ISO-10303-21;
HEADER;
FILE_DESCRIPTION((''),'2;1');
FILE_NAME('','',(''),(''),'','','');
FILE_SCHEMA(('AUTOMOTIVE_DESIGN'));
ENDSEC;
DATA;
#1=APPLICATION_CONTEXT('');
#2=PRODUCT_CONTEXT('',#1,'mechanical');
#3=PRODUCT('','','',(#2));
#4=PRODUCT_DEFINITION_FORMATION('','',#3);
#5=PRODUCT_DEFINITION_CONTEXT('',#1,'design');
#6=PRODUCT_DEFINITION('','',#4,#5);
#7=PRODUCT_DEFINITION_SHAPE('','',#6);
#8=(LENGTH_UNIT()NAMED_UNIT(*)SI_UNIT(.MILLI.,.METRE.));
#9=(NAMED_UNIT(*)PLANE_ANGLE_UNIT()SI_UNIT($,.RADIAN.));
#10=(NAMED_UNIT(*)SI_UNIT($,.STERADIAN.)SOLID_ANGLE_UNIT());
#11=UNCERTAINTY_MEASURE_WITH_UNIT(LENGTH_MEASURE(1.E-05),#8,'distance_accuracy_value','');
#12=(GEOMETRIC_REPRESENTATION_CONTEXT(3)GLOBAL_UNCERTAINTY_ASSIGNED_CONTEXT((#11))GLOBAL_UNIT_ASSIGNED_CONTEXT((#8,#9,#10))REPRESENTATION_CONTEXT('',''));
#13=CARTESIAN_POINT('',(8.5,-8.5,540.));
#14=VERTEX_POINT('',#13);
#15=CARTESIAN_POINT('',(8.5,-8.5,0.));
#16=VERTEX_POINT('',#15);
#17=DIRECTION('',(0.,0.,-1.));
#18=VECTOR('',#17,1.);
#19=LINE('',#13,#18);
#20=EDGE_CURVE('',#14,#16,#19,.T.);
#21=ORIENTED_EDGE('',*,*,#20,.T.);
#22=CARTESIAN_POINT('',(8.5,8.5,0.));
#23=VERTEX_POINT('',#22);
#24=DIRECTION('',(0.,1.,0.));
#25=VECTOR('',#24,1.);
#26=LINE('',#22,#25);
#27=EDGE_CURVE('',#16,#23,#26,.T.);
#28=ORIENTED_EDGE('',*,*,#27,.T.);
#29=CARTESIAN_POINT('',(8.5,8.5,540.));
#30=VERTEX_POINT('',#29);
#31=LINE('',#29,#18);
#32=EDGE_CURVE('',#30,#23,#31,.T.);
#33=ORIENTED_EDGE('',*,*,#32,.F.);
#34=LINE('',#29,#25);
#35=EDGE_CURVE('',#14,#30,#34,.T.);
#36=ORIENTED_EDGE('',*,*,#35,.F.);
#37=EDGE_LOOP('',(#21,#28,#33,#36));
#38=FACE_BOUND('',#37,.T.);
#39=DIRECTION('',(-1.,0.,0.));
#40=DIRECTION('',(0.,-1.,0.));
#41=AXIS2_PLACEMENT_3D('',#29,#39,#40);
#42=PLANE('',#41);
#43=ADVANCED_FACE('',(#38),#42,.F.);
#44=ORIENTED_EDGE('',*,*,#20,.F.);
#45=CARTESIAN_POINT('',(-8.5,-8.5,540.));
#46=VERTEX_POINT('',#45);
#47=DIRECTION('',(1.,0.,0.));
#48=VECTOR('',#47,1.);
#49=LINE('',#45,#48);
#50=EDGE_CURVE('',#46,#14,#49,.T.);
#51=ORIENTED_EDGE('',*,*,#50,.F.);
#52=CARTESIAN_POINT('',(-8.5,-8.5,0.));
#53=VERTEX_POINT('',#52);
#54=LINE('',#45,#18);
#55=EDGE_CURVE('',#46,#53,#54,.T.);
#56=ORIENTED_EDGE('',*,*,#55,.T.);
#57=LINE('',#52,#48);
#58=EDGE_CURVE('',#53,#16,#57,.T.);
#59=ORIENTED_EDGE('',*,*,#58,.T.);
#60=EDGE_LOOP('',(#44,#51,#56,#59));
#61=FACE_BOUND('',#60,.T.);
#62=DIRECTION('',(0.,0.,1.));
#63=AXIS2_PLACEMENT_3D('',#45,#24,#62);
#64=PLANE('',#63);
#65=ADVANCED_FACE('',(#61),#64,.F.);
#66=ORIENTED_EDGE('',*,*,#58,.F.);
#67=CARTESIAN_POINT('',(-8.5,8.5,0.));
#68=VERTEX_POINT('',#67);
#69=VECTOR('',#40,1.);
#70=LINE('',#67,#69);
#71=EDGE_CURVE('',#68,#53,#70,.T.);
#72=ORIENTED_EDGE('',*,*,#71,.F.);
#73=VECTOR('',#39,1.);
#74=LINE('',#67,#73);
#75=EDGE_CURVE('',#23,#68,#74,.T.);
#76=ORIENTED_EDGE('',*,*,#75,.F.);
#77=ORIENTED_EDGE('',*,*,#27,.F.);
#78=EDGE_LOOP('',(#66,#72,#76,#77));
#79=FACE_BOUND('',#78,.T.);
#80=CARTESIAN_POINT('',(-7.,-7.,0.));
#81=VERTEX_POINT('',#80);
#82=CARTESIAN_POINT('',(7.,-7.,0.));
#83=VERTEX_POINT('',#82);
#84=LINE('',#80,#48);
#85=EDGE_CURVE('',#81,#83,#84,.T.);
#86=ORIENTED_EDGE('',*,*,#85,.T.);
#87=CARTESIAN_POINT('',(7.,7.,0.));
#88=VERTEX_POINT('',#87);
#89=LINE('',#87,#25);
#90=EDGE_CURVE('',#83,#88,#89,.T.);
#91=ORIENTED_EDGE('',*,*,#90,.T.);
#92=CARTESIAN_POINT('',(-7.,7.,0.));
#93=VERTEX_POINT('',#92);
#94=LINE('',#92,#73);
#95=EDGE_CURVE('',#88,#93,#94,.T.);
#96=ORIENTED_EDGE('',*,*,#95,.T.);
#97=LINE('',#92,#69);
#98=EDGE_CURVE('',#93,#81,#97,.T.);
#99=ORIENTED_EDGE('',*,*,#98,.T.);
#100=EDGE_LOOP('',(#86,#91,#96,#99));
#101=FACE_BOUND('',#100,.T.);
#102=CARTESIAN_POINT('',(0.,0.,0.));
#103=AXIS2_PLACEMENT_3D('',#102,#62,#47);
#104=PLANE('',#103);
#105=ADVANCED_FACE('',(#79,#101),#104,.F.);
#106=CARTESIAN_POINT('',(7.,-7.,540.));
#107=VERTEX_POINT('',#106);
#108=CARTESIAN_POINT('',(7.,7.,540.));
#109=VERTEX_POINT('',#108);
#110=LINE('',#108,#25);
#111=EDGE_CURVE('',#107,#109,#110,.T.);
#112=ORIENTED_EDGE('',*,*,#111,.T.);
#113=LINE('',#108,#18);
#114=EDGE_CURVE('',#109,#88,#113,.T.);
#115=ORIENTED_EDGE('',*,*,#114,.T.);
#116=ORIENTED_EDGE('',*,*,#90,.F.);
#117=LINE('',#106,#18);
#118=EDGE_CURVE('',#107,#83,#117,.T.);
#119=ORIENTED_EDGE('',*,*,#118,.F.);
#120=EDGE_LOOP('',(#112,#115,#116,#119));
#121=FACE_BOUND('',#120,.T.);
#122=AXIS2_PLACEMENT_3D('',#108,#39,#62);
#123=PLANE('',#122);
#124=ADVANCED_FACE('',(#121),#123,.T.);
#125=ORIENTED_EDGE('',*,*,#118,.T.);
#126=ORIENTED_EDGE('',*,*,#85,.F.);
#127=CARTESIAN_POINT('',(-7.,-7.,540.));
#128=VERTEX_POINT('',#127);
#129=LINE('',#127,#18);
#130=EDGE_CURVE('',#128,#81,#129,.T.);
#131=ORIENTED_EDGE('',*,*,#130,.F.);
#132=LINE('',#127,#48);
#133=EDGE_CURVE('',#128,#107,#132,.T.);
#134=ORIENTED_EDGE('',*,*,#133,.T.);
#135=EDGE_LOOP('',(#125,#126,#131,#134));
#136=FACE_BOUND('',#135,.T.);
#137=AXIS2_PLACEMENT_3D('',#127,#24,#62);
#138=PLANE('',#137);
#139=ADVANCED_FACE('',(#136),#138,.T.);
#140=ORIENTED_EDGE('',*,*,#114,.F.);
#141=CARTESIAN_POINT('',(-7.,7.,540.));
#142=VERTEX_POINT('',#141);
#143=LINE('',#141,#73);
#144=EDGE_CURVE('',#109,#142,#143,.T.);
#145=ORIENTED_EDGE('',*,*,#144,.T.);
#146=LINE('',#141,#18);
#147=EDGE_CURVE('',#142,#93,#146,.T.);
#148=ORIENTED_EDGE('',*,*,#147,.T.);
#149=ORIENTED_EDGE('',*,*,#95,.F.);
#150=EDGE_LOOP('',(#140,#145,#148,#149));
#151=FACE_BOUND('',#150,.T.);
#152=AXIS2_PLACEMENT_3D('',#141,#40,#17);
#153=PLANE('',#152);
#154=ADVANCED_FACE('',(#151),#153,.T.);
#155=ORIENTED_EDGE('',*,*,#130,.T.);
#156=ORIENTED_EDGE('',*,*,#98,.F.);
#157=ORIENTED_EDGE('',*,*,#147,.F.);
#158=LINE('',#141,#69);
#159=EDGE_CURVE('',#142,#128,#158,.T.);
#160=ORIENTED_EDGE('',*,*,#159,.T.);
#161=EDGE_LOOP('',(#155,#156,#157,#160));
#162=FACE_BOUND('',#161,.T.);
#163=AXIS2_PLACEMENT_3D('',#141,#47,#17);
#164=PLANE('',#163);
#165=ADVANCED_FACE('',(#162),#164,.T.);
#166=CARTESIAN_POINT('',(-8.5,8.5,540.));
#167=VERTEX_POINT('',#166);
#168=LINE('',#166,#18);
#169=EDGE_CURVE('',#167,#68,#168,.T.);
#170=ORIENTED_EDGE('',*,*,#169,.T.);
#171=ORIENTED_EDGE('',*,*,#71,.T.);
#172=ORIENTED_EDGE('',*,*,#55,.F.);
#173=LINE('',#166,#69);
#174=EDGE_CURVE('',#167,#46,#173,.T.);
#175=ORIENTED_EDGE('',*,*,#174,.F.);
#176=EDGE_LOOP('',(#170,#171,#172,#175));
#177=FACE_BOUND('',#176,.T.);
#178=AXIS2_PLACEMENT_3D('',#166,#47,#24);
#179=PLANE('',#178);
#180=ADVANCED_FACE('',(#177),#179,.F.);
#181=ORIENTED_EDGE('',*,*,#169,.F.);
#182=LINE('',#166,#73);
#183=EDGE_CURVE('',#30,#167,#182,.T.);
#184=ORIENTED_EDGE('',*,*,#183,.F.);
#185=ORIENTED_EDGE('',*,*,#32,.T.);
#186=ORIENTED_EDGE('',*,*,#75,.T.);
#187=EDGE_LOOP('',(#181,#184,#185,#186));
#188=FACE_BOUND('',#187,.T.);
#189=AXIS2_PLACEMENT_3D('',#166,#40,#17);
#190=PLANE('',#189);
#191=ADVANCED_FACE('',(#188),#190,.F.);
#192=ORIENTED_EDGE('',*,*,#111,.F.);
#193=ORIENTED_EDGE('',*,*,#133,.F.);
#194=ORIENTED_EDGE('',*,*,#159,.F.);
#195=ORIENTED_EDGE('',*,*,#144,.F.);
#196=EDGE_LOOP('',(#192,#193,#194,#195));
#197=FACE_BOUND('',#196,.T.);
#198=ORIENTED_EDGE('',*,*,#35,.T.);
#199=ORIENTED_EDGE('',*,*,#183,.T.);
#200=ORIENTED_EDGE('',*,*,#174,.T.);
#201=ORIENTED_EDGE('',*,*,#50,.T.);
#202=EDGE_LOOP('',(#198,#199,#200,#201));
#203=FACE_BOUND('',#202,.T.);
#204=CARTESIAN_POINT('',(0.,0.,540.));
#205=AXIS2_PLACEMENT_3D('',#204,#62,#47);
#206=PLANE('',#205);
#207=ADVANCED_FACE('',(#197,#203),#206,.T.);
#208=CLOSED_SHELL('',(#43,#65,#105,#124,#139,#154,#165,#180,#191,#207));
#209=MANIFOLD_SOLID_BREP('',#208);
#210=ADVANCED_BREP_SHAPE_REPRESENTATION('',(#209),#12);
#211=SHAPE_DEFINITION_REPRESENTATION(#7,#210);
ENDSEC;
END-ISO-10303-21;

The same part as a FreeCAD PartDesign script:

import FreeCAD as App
import Part
import Sketcher
from FreeCAD import Vector
Q = App.Units.Quantity

doc = App.newDocument("Part")
params = doc.addObject("Spreadsheet::Sheet", "Params")
for row, (alias, value) in enumerate([
    ("sketch1_width", "17 mm"),
    ("sketch1_width2", "14 mm"),
    ("pad1_length", "540 mm"),
], start=1):
    params.set(f"A{row}", alias)
    params.set(f"B{row}", "=" + value)
    params.setAlias(f"B{row}", alias)

body = doc.addObject("PartDesign::Body", "Body")

# Sketch on XY plane
sketch1 = body.newObject("Sketcher::SketchObject", "Sketch")
sketch1.AttachmentSupport = (doc.getObject("XY_Plane"), [""])
sketch1.MapMode = "FlatFace"
sketch1.addGeometry([
    Part.LineSegment(Vector(-8.5, 8.5, 0), Vector(-8.5, -8.5, 0)),  # 0
    Part.LineSegment(Vector(-8.5, -8.5, 0), Vector(8.5, -8.5, 0)),  # 1
    Part.LineSegment(Vector(8.5, -8.5, 0), Vector(8.5, 8.5, 0)),  # 2
    Part.LineSegment(Vector(8.5, 8.5, 0), Vector(-8.5, 8.5, 0)),  # 3
    Part.LineSegment(Vector(7, -7, 0), Vector(-7, -7, 0)),  # 4
    Part.LineSegment(Vector(-7, -7, 0), Vector(-7, 7, 0)),  # 5
    Part.LineSegment(Vector(-7, 7, 0), Vector(7, 7, 0)),  # 6
    Part.LineSegment(Vector(7, 7, 0), Vector(7, -7, 0)),  # 7
], False)
sketch1.addConstraint([
    Sketcher.Constraint("Coincident", 0, 2, 1, 1),
    Sketcher.Constraint("Coincident", 1, 2, 2, 1),
    Sketcher.Constraint("Coincident", 2, 2, 3, 1),
    Sketcher.Constraint("Coincident", 3, 2, 0, 1),
    Sketcher.Constraint("Coincident", 4, 2, 5, 1),
    Sketcher.Constraint("Coincident", 5, 2, 6, 1),
    Sketcher.Constraint("Coincident", 6, 2, 7, 1),
    Sketcher.Constraint("Coincident", 7, 2, 4, 1),
    Sketcher.Constraint("Vertical", 0),
    Sketcher.Constraint("Horizontal", 1),
    Sketcher.Constraint("Vertical", 2),
    Sketcher.Constraint("Horizontal", 3),
    Sketcher.Constraint("Horizontal", 4),
    Sketcher.Constraint("Vertical", 5),
    Sketcher.Constraint("Horizontal", 6),
    Sketcher.Constraint("Vertical", 7),
    Sketcher.Constraint("Symmetric", 0, 2, 2, 2, -1, 1),
    Sketcher.Constraint("Symmetric", 4, 2, 6, 2, -1, 1),
    Sketcher.Constraint("Equal", 3, 0),
    Sketcher.Constraint("Equal", 6, 5),
    Sketcher.Constraint("DistanceX", 1, 1, 1, 2, Q("17 mm")),
    Sketcher.Constraint("DistanceX", 4, 2, 4, 1, Q("14 mm")),
])
sketch1.setExpression("Constraints[20]", "Params.sketch1_width")
sketch1.setExpression("Constraints[21]", "Params.sketch1_width2")
pad1 = body.newObject("PartDesign::Pad", "Pad")
pad1.Profile = sketch1
pad1.setExpression("Length", "Params.pad1_length")

doc.recompute()
